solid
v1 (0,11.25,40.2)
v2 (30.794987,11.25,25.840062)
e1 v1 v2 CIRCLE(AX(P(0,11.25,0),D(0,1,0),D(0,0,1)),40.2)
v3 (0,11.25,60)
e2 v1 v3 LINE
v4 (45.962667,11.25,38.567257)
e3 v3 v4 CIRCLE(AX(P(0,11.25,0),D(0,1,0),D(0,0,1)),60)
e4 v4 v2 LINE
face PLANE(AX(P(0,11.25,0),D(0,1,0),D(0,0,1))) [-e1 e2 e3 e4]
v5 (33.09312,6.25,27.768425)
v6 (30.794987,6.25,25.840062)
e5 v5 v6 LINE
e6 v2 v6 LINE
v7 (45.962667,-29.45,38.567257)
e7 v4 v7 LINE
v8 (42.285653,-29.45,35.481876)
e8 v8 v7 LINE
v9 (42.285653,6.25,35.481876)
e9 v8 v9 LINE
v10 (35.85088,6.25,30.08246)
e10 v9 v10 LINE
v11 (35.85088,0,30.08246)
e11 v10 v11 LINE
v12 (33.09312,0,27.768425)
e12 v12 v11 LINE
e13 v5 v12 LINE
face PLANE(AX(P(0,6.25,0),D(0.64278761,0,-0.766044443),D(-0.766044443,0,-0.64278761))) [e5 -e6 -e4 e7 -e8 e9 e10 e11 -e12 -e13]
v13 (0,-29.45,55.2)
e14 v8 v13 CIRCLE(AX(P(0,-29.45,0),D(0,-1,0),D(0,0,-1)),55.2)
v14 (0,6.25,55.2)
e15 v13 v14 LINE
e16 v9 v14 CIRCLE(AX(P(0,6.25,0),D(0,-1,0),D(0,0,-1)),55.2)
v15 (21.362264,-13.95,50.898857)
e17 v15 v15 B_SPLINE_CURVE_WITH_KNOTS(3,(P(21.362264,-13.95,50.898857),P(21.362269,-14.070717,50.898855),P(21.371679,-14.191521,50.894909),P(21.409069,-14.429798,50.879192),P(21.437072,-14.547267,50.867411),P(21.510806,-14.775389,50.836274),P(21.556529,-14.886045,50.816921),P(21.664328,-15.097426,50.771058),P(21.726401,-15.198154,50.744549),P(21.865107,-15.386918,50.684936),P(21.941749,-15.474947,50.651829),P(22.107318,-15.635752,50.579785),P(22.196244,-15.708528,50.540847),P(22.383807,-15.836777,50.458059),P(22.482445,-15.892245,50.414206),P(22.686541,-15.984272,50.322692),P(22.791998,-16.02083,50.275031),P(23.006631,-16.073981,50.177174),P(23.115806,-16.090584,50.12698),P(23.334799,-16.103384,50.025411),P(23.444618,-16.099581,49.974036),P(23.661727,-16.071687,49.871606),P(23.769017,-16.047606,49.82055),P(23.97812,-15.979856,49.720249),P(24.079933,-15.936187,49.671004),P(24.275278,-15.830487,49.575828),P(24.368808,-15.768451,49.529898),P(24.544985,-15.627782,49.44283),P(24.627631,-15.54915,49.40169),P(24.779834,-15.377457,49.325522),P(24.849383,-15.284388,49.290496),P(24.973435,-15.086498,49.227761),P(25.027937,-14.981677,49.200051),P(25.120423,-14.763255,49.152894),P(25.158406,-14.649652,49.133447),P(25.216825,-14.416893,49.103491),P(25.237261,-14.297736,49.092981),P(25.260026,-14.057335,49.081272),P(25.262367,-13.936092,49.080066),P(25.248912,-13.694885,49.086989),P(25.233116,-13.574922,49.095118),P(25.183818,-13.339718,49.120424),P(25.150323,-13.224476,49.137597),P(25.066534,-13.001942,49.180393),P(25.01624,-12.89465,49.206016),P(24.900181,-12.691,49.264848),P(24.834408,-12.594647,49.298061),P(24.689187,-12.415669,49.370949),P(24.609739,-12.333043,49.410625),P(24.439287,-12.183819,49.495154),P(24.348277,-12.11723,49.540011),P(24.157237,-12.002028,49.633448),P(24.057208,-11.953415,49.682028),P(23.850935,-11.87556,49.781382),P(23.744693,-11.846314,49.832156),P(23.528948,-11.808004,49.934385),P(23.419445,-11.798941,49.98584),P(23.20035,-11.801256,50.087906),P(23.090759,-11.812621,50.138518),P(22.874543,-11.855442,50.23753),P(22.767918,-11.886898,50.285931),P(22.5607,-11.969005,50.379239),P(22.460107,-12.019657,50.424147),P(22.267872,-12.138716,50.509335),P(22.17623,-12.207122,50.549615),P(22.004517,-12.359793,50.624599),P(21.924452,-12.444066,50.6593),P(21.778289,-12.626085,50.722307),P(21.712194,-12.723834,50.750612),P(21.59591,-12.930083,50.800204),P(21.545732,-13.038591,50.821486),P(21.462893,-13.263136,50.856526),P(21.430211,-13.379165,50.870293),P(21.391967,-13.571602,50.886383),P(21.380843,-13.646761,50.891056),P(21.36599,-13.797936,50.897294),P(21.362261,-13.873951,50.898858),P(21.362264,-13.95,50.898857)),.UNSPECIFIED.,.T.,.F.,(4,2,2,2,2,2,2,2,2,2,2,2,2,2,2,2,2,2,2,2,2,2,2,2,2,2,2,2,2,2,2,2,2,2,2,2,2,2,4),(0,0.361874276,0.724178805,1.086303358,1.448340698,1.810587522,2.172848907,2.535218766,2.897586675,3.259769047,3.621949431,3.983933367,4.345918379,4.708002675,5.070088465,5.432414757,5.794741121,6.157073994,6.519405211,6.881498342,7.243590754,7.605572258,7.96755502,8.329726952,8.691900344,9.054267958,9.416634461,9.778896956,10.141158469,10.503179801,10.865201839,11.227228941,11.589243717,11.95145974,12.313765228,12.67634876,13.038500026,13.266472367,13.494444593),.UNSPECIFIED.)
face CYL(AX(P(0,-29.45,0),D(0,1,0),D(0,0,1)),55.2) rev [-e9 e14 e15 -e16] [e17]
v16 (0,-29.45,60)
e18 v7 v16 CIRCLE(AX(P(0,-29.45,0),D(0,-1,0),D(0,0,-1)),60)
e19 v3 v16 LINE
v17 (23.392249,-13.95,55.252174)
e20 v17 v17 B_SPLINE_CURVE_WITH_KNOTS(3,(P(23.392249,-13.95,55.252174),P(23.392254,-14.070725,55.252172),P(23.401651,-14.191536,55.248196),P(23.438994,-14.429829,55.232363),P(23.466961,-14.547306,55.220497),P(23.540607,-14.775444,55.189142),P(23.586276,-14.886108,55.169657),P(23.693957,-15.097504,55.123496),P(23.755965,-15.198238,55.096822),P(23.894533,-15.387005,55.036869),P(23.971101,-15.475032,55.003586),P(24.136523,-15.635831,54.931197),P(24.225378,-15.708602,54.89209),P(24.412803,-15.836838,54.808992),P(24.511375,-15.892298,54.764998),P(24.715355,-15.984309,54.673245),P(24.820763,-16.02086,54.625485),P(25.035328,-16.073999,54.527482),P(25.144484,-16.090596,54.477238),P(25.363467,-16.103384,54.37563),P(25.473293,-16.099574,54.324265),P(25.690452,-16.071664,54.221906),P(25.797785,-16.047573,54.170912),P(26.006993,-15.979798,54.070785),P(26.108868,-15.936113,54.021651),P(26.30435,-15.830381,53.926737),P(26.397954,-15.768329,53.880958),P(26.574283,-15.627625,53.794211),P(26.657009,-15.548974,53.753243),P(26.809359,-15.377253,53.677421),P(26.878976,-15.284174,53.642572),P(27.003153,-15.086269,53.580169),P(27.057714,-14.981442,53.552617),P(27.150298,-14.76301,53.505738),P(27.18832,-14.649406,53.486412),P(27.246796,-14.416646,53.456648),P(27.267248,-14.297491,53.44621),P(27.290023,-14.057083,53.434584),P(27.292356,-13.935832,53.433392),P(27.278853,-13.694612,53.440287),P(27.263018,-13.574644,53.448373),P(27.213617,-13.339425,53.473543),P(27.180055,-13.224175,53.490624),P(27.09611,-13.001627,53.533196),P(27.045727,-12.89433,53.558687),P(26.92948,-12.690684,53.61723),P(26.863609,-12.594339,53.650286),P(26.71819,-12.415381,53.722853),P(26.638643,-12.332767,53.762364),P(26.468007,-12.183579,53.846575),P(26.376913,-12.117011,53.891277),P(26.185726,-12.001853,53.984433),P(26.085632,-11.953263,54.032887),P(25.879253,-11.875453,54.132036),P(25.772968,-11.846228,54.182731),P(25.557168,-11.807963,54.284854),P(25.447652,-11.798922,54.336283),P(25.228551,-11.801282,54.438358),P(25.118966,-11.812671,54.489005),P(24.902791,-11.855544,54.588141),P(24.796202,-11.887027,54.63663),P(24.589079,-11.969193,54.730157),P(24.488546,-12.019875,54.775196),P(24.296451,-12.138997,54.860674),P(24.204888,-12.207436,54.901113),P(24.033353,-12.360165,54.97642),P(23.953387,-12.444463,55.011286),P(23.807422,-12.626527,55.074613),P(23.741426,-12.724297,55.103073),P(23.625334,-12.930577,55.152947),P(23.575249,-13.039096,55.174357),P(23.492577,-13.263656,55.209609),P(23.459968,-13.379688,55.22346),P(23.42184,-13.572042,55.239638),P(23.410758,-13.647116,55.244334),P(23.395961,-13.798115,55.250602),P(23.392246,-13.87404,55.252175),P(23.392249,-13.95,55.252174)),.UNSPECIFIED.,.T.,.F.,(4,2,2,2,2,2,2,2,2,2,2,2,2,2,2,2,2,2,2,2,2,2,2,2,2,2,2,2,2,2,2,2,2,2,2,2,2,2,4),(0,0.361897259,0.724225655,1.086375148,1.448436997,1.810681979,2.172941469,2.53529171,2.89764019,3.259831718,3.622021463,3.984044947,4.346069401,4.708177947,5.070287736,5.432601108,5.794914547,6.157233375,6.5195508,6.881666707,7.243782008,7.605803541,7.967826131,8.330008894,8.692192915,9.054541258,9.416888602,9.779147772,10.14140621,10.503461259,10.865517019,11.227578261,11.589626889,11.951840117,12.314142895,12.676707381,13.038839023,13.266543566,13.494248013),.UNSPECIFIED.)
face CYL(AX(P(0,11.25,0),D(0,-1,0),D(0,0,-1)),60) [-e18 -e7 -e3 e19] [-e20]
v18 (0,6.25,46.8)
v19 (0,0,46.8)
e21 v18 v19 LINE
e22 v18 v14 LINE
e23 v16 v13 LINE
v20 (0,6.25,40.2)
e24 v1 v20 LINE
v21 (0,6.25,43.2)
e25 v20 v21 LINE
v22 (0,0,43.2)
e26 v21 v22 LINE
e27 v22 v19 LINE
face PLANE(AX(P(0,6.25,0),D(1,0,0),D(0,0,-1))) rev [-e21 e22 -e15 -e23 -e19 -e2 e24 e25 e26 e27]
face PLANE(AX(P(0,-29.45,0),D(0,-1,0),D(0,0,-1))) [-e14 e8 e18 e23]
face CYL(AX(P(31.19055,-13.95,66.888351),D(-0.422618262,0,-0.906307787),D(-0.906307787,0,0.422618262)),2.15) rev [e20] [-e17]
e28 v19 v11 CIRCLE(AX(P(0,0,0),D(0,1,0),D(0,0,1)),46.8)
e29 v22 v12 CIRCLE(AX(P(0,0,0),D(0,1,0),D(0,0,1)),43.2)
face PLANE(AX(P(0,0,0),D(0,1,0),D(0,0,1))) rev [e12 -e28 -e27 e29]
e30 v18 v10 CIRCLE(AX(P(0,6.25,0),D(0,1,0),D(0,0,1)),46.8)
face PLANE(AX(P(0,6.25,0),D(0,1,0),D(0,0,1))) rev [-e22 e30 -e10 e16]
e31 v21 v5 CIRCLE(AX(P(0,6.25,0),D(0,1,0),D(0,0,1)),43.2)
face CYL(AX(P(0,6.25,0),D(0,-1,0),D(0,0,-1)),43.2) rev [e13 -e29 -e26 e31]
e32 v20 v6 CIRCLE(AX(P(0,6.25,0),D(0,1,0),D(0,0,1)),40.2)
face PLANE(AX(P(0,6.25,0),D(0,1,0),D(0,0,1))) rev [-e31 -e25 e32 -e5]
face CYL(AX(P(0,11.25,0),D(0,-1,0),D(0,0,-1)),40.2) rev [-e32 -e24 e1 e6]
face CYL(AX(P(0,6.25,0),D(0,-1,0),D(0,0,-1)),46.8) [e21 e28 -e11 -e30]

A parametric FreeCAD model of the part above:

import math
import FreeCAD as App
import Part
import Sketcher

V = App.Vector
Q = App.Units.Quantity

doc = App.newDocument("Part")
body = doc.addObject("PartDesign::Body", "Body")

# Sketch on XZ plane
sketch1 = body.newObject("Sketcher::SketchObject", "Sketch")
sketch1.AttachmentSupport = (doc.getObject("XZ_Plane"), [""])
sketch1.MapMode = "FlatFace"
sketch1.addGeometry(Part.ArcOfCircle(Part.Circle(V(0, 0, 0), V(0, 0, 1), 43.2), math.radians(40), math.radians(90)), False)
sketch1.addGeometry(Part.LineSegment(V(0, 43.2, 0), V(0, 46.8, 0)), False)
sketch1.addGeometry(Part.ArcOfCircle(Part.Circle(V(0, 0, 0), V(0, 0, 1), 46.8), math.radians(40), math.radians(90)), False)
sketch1.addGeometry(Part.LineSegment(V(35.9, 30.1, 0), V(33.1, 27.8, 0)), False)
sketch1.addConstraint(Sketcher.Constraint("Coincident", 0, 2, 1, 1))
sketch1.addConstraint(Sketcher.Constraint("Coincident", 1, 2, 2, 2))
sketch1.addConstraint(Sketcher.Constraint("Coincident", 2, 1, 3, 1))
sketch1.addConstraint(Sketcher.Constraint("Coincident", 3, 2, 0, 1))
sketch1.addConstraint(Sketcher.Constraint("Vertical", 1))
sketch1.addConstraint(Sketcher.Constraint("Coincident", 0, 3, -1, 1))
sketch1.addConstraint(Sketcher.Constraint("Coincident", 2, 3, -1, 1))
sketch1.addConstraint(Sketcher.Constraint("PointOnObject", 0, 2, -2))
sketch1.addConstraint(Sketcher.Constraint("Radius", 0, 43.2))
sketch1.addConstraint(Sketcher.Constraint("Radius", 2, 46.8))
sketch1.addConstraint(Sketcher.Constraint("Angle", 3, Q("-140 deg")))
sketch1.addConstraint(Sketcher.Constraint("DistanceX", -1, 1, 2, 1, 35.85088))
pad1 = body.newObject("PartDesign::Pad", "Pad")
pad1.Profile = sketch1
pad1.Length = 6.25
pad1.Reversed = True

# Sketch on XZ plane
sketch2 = body.newObject("Sketcher::SketchObject", "Sketch001")
sketch2.AttachmentSupport = (doc.getObject("XZ_Plane"), [""])
sketch2.MapMode = "FlatFace"
sketch2.AttachmentOffset = App.Placement(V(0, 0, -6.25), App.Rotation())
sketch2.addGeometry(Part.ArcOfCircle(Part.Circle(V(0, 0, 0), V(0, 0, 1), 60), math.radians(40), math.radians(90)), False)
sketch2.addGeometry(Part.LineSegment(V(46, 38.6, 0), V(35.9, 30.1, 0)), False)
sketch2.addGeometry(Part.LineSegment(V(35.9, 30.1, 0), V(33.1, 27.8, 0)), False)
sketch2.addGeometry(Part.LineSegment(V(33.1, 27.8, 0), V(30.8, 25.8, 0)), False)
sketch2.addGeometry(Part.ArcOfCircle(Part.Circle(V(0, 0, 0), V(0, 0, 1), 40.2), math.radians(40), math.radians(90)), False)
sketch2.addGeometry(Part.LineSegment(V(0, 40.2, 0), V(0, 60, 0)), False)
sketch2.addConstraint(Sketcher.Constraint("Coincident", 0, 1, 1, 1))
sketch2.addConstraint(Sketcher.Constraint("Coincident", 1, 2, 2, 1))
sketch2.addConstraint(Sketcher.Constraint("Coincident", 2, 2, 3, 1))
sketch2.addConstraint(Sketcher.Constraint("Coincident", 3, 2, 4, 1))
sketch2.addConstraint(Sketcher.Constraint("Coincident", 4, 2, 5, 1))
sketch2.addConstraint(Sketcher.Constraint("Coincident", 5, 2, 0, 2))
sketch2.addConstraint(Sketcher.Constraint("Vertical", 5))
sketch2.addConstraint(Sketcher.Constraint("Coincident", 0, 3, -1, 1))
sketch2.addConstraint(Sketcher.Constraint("Coincident", 4, 3, -1, 1))
sketch2.addConstraint(Sketcher.Constraint("PointOnObject", 4, 2, -2))
sketch2.addConstraint(Sketcher.Constraint("Parallel", 1, 2))
sketch2.addConstraint(Sketcher.Constraint("Parallel", 2, 3))
sketch2.addConstraint(Sketcher.Constraint("Radius", 0, 60.0))
sketch2.addConstraint(Sketcher.Constraint("Radius", 4, 40.2))
sketch2.addConstraint(Sketcher.Constraint("Angle", 1, Q("-140 deg")))
sketch2.addConstraint(Sketcher.Constraint("Distance", 3, 3.0))
sketch2.addConstraint(Sketcher.Constraint("Distance", 1, 13.2))
sketch2.addConstraint(Sketcher.Constraint("DistanceX", -1, 1, 1, 2, 35.85088))
pad2 = body.newObject("PartDesign::Pad", "Pad001")
pad2.Profile = sketch2
pad2.Length = 5
pad2.Reversed = True

# Sketch on XZ plane
sketch3 = body.newObject("Sketcher::SketchObject", "Sketch002")
sketch3.AttachmentSupport = (doc.getObject("XZ_Plane"), [""])
sketch3.MapMode = "FlatFace"
sketch3.AttachmentOffset = App.Placement(V(0, 0, 29.45), App.Rotation())
sketch3.addGeometry(Part.ArcOfCircle(Part.Circle(V(0, 0, 0), V(0, 0, 1), 55.2), math.radians(40), math.radians(90)), False)
sketch3.addGeometry(Part.LineSegment(V(42.3, 35.5, 0), V(46, 38.6, 0)), False)
sketch3.addGeometry(Part.ArcOfCircle(Part.Circle(V(0, 0, 0), V(0, 0, 1), 60), math.radians(40), math.radians(90)), False)
sketch3.addGeometry(Part.LineSegment(V(0, 60, 0), V(0, 55.2, 0)), False)
sketch3.addConstraint(Sketcher.Constraint("Coincident", 0, 1, 1, 1))
sketch3.addConstraint(Sketcher.Constraint("Coincident", 1, 2, 2, 1))
sketch3.addConstraint(Sketcher.Constraint("Coincident", 2, 2, 3, 1))
sketch3.addConstraint(Sketcher.Constraint("Coincident", 3, 2, 0, 2))
sketch3.addConstraint(Sketcher.Constraint("Vertical", 3))
sketch3.addConstraint(Sketcher.Constraint("Coincident", 0, 3, -1, 1))
sketch3.addConstraint(Sketcher.Constraint("Coincident", 2, 3, -1, 1))
sketch3.addConstraint(Sketcher.Constraint("PointOnObject", 2, 2, -2))
sketch3.addConstraint(Sketcher.Constraint("Radius", 2, 60.0))
sketch3.addConstraint(Sketcher.Constraint("Radius", 0, 55.2))
sketch3.addConstraint(Sketcher.Constraint("Angle", 1, Q("40 deg")))
sketch3.addConstraint(Sketcher.Constraint("DistanceX", -1, 1, 0, 1, 42.285653))
pad3 = body.newObject("PartDesign::Pad", "Pad002")
pad3.Profile = sketch3
pad3.Length = 35.7
pad3.Reversed = True

# Sketch on an angled plane
sketch4 = body.newObject("Sketcher::SketchObject", "Sketch003")
sketch4.Placement = App.Placement(V(15.397493, 0, 33.020031), App.Rotation(V(0.906307787, 0, -0.422618262), V(0, 1, 0), V(0.422618262, 0, 0.906307787), "ZXY"))
sketch4.addGeometry(Part.Circle(V(0, -14, 0), V(0, 0, 1), 2.1), False)
sketch4.addConstraint(Sketcher.Constraint("PointOnObject", 0, 3, -2))
sketch4.addConstraint(Sketcher.Constraint("Diameter", 0, 4.3))
sketch4.addConstraint(Sketcher.Constraint("DistanceY", 0, 3, -1, 1, 13.95))
pocket1 = body.newObject("PartDesign::Pocket", "Pocket")
pocket1.Profile = sketch4
pocket1.Type = "ThroughAll"
pocket1.Reversed = True

doc.recompute()
